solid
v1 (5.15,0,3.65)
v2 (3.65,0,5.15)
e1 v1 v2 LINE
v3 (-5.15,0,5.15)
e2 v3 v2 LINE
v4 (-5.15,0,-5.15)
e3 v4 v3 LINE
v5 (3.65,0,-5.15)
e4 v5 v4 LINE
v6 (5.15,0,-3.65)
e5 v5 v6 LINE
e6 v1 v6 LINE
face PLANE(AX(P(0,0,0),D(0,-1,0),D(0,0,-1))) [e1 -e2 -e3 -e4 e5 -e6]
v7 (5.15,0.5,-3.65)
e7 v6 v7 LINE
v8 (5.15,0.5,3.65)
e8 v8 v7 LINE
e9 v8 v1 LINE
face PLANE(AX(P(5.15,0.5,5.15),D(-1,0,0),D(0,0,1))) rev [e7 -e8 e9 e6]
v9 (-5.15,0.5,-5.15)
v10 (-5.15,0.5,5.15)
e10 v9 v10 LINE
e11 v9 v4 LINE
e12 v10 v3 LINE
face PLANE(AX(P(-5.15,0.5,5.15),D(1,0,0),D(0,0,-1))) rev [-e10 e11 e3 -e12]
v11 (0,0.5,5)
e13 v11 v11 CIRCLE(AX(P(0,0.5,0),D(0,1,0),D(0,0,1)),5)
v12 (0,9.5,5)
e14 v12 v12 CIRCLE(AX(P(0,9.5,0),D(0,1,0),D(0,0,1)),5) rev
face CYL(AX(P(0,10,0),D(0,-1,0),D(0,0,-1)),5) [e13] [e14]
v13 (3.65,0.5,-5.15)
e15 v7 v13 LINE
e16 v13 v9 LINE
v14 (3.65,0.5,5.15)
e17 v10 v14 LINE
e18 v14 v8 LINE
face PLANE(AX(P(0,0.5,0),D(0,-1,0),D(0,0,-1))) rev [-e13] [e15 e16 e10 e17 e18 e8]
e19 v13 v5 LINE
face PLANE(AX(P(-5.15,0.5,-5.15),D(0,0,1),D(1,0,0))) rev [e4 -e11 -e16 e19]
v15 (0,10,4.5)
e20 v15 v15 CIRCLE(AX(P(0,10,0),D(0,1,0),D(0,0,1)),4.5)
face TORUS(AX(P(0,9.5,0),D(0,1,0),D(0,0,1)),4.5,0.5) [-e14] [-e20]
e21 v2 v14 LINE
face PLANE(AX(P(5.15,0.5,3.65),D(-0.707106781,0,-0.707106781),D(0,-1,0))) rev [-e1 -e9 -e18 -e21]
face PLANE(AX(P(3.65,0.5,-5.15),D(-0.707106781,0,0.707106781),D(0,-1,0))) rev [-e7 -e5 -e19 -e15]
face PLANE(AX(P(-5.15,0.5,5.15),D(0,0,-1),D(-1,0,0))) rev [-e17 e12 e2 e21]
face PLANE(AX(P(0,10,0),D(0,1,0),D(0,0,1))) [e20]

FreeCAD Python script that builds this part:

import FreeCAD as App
import Part
import Sketcher


def edges_at(feature, points):
    """Names of the edges that pass closest to the given points."""
    edges = feature.Shape.Edges
    near = lambda p: min(range(len(edges)), key=lambda i: edges[i].distToShape(Part.Vertex(*p))[0])
    return sorted({f"Edge{near(p) + 1}" for p in points})

doc = App.newDocument("Part")
params = doc.addObject("Spreadsheet::Sheet", "Params")
for row, (alias, value) in enumerate([
    ("sketch1_width", "10.3 mm"),
    ("pad1_length", "0.5 mm"),
    ("sketch2_diameter", "10 mm"),
    ("pad2_length", "9.5 mm"),
    ("chamfer_size", "1.5 mm"),
    ("fillet_radius", "0.5 mm"),
], start=1):
    params.set(f"A{row}", alias)
    params.set(f"B{row}", "=" + value)
    params.setAlias(f"B{row}", alias)

body = doc.addObject("PartDesign::Body", "Body")

# Sketch on XZ plane
sketch1 = body.newObject("Sketcher::SketchObject", "Sketch")
sketch1.AttachmentSupport = (doc.getObject("XZ_Plane"), [""])
sketch1.MapMode = "FlatFace"
sketch1.addGeometry([
    Part.LineSegment(App.Vector(-5.15, -5.15, 0), App.Vector(-5.15, 5.15, 0)),
    Part.LineSegment(App.Vector(-5.15, 5.15, 0), App.Vector(5.15, 5.15, 0)),
    Part.LineSegment(App.Vector(5.15, 5.15, 0), App.Vector(5.15, -5.15, 0)),
    Part.LineSegment(App.Vector(5.15, -5.15, 0), App.Vector(-5.15, -5.15, 0)),
], False)
sketch1.addConstraint([
    Sketcher.Constraint("Coincident", 0, 2, 1, 1),
    Sketcher.Constraint("Coincident", 1, 2, 2, 1),
    Sketcher.Constraint("Coincident", 2, 2, 3, 1),
    Sketcher.Constraint("Coincident", 3, 2, 0, 1),
    Sketcher.Constraint("Vertical", 0),
    Sketcher.Constraint("Horizontal", 1),
    Sketcher.Constraint("Vertical", 2),
    Sketcher.Constraint("Horizontal", 3),
    Sketcher.Constraint("Symmetric", 0, 2, 2, 2, -1, 1),
    Sketcher.Constraint("Equal", 3, 0),
    Sketcher.Constraint("DistanceX", 1, 1, 1, 2, 10.3),
])
sketch1.setExpression("Constraints[10]", "Params.sketch1_width")
pad1 = body.newObject("PartDesign::Pad", "Pad")
pad1.Profile = sketch1
pad1.setExpression("Length", "Params.pad1_length")
pad1.Reversed = True

# Sketch on XZ plane
sketch2 = body.newObject("Sketcher::SketchObject", "Sketch001")
sketch2.AttachmentSupport = (doc.getObject("XZ_Plane"), [""])
sketch2.MapMode = "FlatFace"
sketch2.AttachmentOffset = App.Placement(App.Vector(0, 0, -0.5), App.Rotation())
sketch2.addGeometry(Part.Circle(App.Vector(0, 0, 0), App.Vector(0, 0, 1), 5), False)
sketch2.addConstraint([
    Sketcher.Constraint("Coincident", 0, 3, -1, 1),
    Sketcher.Constraint("Diameter", 0, 10.0),
])
sketch2.setExpression("Constraints[1]", "Params.sketch2_diameter")
pad2 = body.newObject("PartDesign::Pad", "Pad001")
pad2.Profile = sketch2
pad2.setExpression("Length", "Params.pad2_length")
pad2.Reversed = True
doc.recompute()

chamfer = body.newObject("PartDesign::Chamfer", "Chamfer")
chamfer.Base = (pad2, edges_at(pad2, [(5.15, 0.25, 5.15), (5.15, 0.25, -5.15)]))
chamfer.setExpression("Size", "Params.chamfer_size")
doc.recompute()

fillet = body.newObject("PartDesign::Fillet", "Fillet")
fillet.Base = (chamfer, edges_at(chamfer, [(0, 10, -5)]))
fillet.setExpression("Radius", "Params.fillet_radius")

doc.recompute()
